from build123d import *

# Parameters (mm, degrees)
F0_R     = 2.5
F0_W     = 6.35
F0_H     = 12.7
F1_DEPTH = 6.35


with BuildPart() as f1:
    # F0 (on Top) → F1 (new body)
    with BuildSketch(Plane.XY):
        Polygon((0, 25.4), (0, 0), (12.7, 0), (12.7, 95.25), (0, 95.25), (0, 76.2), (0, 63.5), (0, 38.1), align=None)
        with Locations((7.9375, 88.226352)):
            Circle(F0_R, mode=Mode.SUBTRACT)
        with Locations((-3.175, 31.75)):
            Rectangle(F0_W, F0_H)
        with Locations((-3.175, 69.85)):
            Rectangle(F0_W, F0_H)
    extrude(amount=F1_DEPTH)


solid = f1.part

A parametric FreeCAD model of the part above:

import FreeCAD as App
import Part
import Sketcher

V = App.Vector
Q = App.Units.Quantity

doc = App.newDocument("Part")
body = doc.addObject("PartDesign::Body", "Body")

# Sketch on XY plane
sketch1 = doc.addObject("Sketcher::SketchObject", "Sketch")
body.addObject(sketch1)
sketch1.AttachmentSupport = (doc.XY_Plane, [""])
sketch1.MapMode = "FlatFace"
sketch1.addGeometry([
    Part.LineSegment(V(0, 0, 0), V(12.7, 0, 0)),  # 0
    Part.LineSegment(V(12.7, 0, 0), V(12.7, 95.25, 0)),  # 1
    Part.LineSegment(V(12.7, 95.25, 0), V(0, 95.25, 0)),  # 2
    Part.LineSegment(V(0, 95.25, 0), V(0, 76.2, 0)),  # 3
    Part.LineSegment(V(0, 76.2, 0), V(-6.35, 76.2, 0)),  # 4
    Part.LineSegment(V(-6.35, 76.2, 0), V(-6.35, 63.5, 0)),  # 5
    Part.LineSegment(V(-6.35, 63.5, 0), V(0, 63.5, 0)),  # 6
    Part.LineSegment(V(0, 63.5, 0), V(0, 38.1, 0)),  # 7
    Part.LineSegment(V(0, 38.1, 0), V(-6.35, 38.1, 0)),  # 8
    Part.LineSegment(V(-6.35, 38.1, 0), V(-6.35, 25.4, 0)),  # 9
    Part.LineSegment(V(-6.35, 25.4, 0), V(0, 25.4, 0)),  # 10
    Part.LineSegment(V(0, 25.4, 0), V(0, 0, 0)),  # 11
    Part.Circle(V(7.9375, 88.226352, 0), V(0, 0, 1), 2.5),  # 12
], False)
sketch1.addConstraint([
    Sketcher.Constraint("Coincident", 0, 2, 1, 1),
    Sketcher.Constraint("Coincident", 1, 2, 2, 1),
    Sketcher.Constraint("Coincident", 2, 2, 3, 1),
    Sketcher.Constraint("Coincident", 3, 2, 4, 1),
    Sketcher.Constraint("Coincident", 4, 2, 5, 1),
    Sketcher.Constraint("Coincident", 5, 2, 6, 1),
    Sketcher.Constraint("Coincident", 6, 2, 7, 1),
    Sketcher.Constraint("Coincident", 7, 2, 8, 1),
    Sketcher.Constraint("Coincident", 8, 2, 9, 1),
    Sketcher.Constraint("Coincident", 9, 2, 10, 1),
    Sketcher.Constraint("Coincident", 10, 2, 11, 1),
    Sketcher.Constraint("Coincident", 11, 2, 0, 1),
    Sketcher.Constraint("Horizontal", 0),
    Sketcher.Constraint("Vertical", 1),
    Sketcher.Constraint("Horizontal", 2),
    Sketcher.Constraint("Vertical", 3),
    Sketcher.Constraint("Horizontal", 4),
    Sketcher.Constraint("Vertical", 5),
    Sketcher.Constraint("Horizontal", 6),
    Sketcher.Constraint("Vertical", 7),
    Sketcher.Constraint("Horizontal", 8),
    Sketcher.Constraint("Vertical", 9),
    Sketcher.Constraint("Horizontal", 10),
    Sketcher.Constraint("Vertical", 11),
    Sketcher.Constraint("Coincident", 11, 2, -1, 1),
    Sketcher.Constraint("PointOnObject", 2, 2, -2),
    Sketcher.Constraint("PointOnObject", 6, 2, -2),
    Sketcher.Constraint("Vertical", 5, 2, 8, 2),
    Sketcher.Constraint("Equal", 2, 5),
    Sketcher.Constraint("Equal", 5, 9),
    Sketcher.Constraint("Equal", 7, 11),
    Sketcher.Constraint("DistanceY", 7, 2, 7, 1, Q("1 in")),
    Sketcher.Constraint("DistanceX", 0, 1, 0, 2, Q("0.5 in")),
    Sketcher.Constraint("DistanceX", 4, 2, 4, 1, Q("0.25 in")),
    Sketcher.Constraint("DistanceY", 1, 1, 1, 2, Q("3.75 in")),
    Sketcher.Constraint("Diameter", 12, 5.0),
    Sketcher.Constraint("DistanceX", -1, 1, 12, 3, Q("0.3125 in")),
    Sketcher.Constraint("DistanceY", -1, 1, 12, 3, 88.226352),
])
pad1 = doc.addObject("PartDesign::Pad", "Pad")
body.addObject(pad1)
pad1.Profile = sketch1
pad1.Length = Q("0.25 in")

doc.recompute()
